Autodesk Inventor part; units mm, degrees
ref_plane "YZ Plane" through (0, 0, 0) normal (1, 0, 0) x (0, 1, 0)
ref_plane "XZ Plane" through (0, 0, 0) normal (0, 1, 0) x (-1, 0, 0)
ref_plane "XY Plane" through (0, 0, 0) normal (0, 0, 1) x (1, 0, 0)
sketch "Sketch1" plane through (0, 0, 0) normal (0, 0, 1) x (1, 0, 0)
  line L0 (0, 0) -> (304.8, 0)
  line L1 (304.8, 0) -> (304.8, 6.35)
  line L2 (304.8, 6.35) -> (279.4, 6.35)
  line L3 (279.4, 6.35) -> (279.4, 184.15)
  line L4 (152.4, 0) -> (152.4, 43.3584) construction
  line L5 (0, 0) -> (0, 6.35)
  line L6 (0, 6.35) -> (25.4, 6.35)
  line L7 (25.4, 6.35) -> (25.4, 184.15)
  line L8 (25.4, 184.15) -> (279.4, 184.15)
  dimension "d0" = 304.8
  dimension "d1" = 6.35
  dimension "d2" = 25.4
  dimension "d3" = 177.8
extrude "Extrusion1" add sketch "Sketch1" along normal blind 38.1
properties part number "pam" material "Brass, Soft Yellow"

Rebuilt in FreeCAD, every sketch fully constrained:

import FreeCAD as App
import Part
import Sketcher
from FreeCAD import Vector
Q = App.Units.Quantity


def add_polygon(sketch, points):
    """Adds a closed chain of lines whose ends are joined by coincident constraints."""
    first, n = sketch.GeometryCount, len(points)
    for a, b in zip(points, points[1:] + points[:1]):
        sketch.addGeometry(Part.LineSegment(App.Vector(*a, 0), App.Vector(*b, 0)), False)
    for i in range(n):
        sketch.addConstraint(Sketcher.Constraint("Coincident", first + i, 2, first + (i + 1) % n, 1))

doc = App.newDocument("Part")
body = doc.addObject("PartDesign::Body", "Body")

sketch1 = body.newObject("Sketcher::SketchObject", "Sketch")
sketch1.AttachmentSupport = (doc.getObject("XY_Plane"), [""])
sketch1.MapMode = "FlatFace"
add_polygon(sketch1, [(0, 6), (0, 0), (305, 0), (305, 6), (279, 6), (279, 184), (25, 184), (25, 6)])
sketch1.addConstraint([
    Sketcher.Constraint("Vertical", 0),
    Sketcher.Constraint("Horizontal", 1),
    Sketcher.Constraint("Vertical", 2),
    Sketcher.Constraint("Horizontal", 3),
    Sketcher.Constraint("Vertical", 4),
    Sketcher.Constraint("Horizontal", 5),
    Sketcher.Constraint("Vertical", 6),
    Sketcher.Constraint("Horizontal", 7),
    Sketcher.Constraint("Coincident", 0, 2, -1, 1),
    Sketcher.Constraint("Horizontal", 3, 2, 6, 2),
    Sketcher.Constraint("Equal", 3, 7),
    Sketcher.Constraint("DistanceX", 1, 1, 1, 2, Q("12 in")),
    Sketcher.Constraint("DistanceX", 3, 2, 3, 1, Q("1 in")),
    Sketcher.Constraint("DistanceY", 4, 1, 4, 2, Q("7 in")),
    Sketcher.Constraint("DistanceY", 0, 2, 0, 1, Q("0.25 in")),
])
pad1 = body.newObject("PartDesign::Pad", "Pad")
pad1.Profile = sketch1
pad1.Length = Q("1.5 in")

doc.recompute()
